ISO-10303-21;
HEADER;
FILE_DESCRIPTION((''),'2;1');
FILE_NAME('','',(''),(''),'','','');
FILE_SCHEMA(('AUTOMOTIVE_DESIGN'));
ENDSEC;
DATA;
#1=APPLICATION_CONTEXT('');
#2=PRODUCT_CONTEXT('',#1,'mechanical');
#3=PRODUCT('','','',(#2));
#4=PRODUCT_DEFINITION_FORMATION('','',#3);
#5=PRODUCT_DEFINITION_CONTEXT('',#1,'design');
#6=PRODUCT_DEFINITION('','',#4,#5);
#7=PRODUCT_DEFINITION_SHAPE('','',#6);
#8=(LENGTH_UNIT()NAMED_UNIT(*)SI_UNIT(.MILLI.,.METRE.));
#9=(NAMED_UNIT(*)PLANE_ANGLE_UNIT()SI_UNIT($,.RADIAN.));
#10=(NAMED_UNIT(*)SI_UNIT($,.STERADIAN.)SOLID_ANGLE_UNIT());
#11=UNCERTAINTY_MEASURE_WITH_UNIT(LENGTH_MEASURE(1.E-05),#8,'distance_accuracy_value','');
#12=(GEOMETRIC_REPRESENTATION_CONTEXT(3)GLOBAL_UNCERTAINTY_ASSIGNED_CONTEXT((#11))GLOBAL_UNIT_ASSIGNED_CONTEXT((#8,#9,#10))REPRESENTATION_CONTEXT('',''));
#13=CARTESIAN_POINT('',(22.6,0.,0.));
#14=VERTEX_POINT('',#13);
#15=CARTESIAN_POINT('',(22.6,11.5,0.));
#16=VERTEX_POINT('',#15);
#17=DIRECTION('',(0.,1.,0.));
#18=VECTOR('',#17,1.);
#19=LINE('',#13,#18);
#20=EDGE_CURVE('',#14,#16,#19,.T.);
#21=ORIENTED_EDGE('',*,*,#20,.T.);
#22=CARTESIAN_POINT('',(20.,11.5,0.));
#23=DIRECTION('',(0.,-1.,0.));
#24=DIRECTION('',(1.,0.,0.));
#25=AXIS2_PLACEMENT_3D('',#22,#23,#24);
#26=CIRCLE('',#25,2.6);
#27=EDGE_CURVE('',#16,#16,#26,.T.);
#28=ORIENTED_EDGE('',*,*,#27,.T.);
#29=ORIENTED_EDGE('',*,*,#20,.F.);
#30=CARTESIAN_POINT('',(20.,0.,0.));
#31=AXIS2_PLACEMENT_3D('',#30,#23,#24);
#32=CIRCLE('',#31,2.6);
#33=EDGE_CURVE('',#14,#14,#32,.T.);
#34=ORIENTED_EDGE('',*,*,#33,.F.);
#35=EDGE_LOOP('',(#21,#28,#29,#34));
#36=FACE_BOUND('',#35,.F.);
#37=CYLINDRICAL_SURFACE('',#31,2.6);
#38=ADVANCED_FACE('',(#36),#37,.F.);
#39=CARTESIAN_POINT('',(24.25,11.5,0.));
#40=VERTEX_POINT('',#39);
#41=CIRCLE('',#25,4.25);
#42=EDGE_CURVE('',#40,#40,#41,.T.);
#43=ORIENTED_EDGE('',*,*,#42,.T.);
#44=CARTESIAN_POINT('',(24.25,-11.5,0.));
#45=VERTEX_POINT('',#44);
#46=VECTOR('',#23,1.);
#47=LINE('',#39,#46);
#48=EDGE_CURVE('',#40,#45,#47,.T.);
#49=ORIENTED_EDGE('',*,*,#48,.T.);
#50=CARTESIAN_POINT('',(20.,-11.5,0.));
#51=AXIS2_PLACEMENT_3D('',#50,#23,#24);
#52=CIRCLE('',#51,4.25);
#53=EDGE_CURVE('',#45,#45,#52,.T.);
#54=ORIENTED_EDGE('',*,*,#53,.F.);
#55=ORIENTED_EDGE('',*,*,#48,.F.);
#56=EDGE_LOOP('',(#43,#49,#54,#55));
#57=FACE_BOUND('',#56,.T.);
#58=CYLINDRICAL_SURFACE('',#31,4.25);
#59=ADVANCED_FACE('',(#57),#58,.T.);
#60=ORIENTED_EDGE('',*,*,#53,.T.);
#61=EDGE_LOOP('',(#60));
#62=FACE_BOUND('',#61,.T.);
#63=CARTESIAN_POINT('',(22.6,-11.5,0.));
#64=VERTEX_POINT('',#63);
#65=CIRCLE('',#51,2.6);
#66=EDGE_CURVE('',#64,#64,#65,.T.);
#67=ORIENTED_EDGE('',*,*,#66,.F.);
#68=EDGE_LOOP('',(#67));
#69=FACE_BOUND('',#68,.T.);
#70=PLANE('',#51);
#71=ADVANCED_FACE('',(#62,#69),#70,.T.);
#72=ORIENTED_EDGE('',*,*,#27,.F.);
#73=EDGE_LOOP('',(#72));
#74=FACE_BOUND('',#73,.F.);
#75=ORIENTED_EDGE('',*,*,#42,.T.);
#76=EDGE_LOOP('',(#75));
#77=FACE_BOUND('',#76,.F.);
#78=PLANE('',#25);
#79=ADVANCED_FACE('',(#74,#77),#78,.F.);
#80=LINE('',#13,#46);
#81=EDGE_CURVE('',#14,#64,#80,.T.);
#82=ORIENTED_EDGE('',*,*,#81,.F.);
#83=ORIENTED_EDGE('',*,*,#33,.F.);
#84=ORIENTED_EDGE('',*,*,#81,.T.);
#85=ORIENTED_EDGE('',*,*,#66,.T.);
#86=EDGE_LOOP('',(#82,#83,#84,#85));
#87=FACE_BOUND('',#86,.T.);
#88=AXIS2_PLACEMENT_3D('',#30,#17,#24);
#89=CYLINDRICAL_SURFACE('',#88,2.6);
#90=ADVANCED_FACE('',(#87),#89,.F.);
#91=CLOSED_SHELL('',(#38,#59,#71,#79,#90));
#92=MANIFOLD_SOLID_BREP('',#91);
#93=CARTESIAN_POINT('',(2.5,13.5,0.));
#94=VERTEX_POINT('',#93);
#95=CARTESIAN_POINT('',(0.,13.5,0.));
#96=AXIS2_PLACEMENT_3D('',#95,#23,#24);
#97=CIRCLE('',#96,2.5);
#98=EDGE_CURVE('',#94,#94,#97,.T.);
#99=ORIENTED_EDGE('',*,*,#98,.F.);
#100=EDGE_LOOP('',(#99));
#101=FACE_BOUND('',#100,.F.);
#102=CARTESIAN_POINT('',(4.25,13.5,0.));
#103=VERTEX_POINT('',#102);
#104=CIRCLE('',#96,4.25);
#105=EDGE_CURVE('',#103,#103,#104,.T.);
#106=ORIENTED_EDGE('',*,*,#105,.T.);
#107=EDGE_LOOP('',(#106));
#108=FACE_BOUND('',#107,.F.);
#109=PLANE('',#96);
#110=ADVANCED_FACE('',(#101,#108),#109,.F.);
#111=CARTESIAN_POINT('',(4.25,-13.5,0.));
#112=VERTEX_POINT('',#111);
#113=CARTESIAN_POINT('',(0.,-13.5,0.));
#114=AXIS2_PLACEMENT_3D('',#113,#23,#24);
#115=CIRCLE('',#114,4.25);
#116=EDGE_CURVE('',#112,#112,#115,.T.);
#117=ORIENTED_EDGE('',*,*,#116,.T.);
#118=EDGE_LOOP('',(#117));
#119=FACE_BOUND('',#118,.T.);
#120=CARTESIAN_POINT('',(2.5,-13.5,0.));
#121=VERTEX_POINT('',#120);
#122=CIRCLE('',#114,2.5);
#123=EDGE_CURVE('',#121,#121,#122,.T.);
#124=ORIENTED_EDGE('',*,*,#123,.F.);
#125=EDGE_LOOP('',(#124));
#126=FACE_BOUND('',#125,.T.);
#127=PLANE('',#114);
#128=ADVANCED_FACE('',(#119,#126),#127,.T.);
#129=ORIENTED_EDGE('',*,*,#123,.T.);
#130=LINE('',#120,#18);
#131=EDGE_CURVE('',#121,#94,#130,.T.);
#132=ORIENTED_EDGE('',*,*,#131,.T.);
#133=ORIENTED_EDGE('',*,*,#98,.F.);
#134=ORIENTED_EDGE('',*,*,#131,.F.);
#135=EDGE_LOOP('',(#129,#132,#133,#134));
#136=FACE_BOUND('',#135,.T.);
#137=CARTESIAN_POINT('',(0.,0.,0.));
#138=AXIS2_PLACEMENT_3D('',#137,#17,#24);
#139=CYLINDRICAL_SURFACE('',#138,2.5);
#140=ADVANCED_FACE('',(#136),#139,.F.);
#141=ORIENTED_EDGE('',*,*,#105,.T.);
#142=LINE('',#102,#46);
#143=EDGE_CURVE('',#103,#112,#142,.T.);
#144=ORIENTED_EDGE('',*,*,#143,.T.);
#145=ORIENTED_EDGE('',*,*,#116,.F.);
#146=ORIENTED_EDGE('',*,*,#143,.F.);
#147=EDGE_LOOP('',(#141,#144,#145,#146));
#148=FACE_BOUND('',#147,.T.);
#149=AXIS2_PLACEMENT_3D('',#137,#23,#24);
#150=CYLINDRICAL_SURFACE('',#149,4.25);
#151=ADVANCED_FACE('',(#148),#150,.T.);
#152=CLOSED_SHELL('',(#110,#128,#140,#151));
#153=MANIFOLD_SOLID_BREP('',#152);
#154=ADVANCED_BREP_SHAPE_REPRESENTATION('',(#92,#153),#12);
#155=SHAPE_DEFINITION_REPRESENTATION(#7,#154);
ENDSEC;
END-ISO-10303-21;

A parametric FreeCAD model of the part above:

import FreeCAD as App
import Part
import Sketcher
from FreeCAD import Vector

doc = App.newDocument("Part")
params = doc.addObject("Spreadsheet::Sheet", "Params")
for row, (alias, value) in enumerate([
    ("sketch1_diameter", "5 mm"),
    ("sketch1_diameter2", "8.5 mm"),
    ("pad1_length", "27 mm"),
    ("sketch2_diameter", "8.5 mm"),
    ("sketch2_diameter2", "5.2 mm"),
    ("pad2_length", "11.5 mm"),
    ("pad2_length2", "11.5 mm"),
], start=1):
    params.set(f"A{row}", alias)
    params.set(f"B{row}", "=" + value)
    params.setAlias(f"B{row}", alias)

body = doc.addObject("PartDesign::Body", "Body")

sketch1 = body.newObject("Sketcher::SketchObject", "Sketch")
sketch1.AttachmentSupport = (doc.getObject("XZ_Plane"), [""])
sketch1.MapMode = "FlatFace"
sketch1.addGeometry([
    Part.Circle(Vector(0, 0, 0), Vector(0, 0, 1), 4.2),
    Part.Circle(Vector(0, 0, 0), Vector(0, 0, 1), 2.5),
], False)
sketch1.addConstraint([
    Sketcher.Constraint("Coincident", 0, 3, -1, 1),
    Sketcher.Constraint("Coincident", 1, 3, -1, 1),
    Sketcher.Constraint("Diameter", 1, 5.0),
    Sketcher.Constraint("Diameter", 0, 8.5),
])
sketch1.setExpression("Constraints[2]", "Params.sketch1_diameter")
sketch1.setExpression("Constraints[3]", "Params.sketch1_diameter2")
pad1 = body.newObject("PartDesign::Pad", "Pad")
pad1.Profile = sketch1
pad1.setExpression("Length", "Params.pad1_length")
pad1.Midplane = True
body2 = doc.addObject("PartDesign::Body", "Body001")

sketch2 = body2.newObject("Sketcher::SketchObject", "Sketch001")
sketch2.AttachmentSupport = (doc.getObject("XZ_Plane001"), [""])
sketch2.MapMode = "FlatFace"
sketch2.addGeometry([
    Part.Circle(Vector(20, 0, 0), Vector(0, 0, 1), 4.2),
    Part.Circle(Vector(20, 0, 0), Vector(0, 0, 1), 2.6),
], False)
sketch2.addConstraint([
    Sketcher.Constraint("Coincident", 1, 3, 0, 3),
    Sketcher.Constraint("PointOnObject", 0, 3, -1),
    Sketcher.Constraint("Diameter", 0, 8.5),
    Sketcher.Constraint("Diameter", 1, 5.2),
    Sketcher.Constraint("DistanceX", -1, 1, 0, 3, 20.0),
])
sketch2.setExpression("Constraints[2]", "Params.sketch2_diameter")
sketch2.setExpression("Constraints[3]", "Params.sketch2_diameter2")
pad2 = body2.newObject("PartDesign::Pad", "Pad001")
pad2.Profile = sketch2
pad2.Type = "TwoLengths"
pad2.setExpression("Length", "Params.pad2_length")
pad2.setExpression("Length2", "Params.pad2_length2")

doc.recompute()
